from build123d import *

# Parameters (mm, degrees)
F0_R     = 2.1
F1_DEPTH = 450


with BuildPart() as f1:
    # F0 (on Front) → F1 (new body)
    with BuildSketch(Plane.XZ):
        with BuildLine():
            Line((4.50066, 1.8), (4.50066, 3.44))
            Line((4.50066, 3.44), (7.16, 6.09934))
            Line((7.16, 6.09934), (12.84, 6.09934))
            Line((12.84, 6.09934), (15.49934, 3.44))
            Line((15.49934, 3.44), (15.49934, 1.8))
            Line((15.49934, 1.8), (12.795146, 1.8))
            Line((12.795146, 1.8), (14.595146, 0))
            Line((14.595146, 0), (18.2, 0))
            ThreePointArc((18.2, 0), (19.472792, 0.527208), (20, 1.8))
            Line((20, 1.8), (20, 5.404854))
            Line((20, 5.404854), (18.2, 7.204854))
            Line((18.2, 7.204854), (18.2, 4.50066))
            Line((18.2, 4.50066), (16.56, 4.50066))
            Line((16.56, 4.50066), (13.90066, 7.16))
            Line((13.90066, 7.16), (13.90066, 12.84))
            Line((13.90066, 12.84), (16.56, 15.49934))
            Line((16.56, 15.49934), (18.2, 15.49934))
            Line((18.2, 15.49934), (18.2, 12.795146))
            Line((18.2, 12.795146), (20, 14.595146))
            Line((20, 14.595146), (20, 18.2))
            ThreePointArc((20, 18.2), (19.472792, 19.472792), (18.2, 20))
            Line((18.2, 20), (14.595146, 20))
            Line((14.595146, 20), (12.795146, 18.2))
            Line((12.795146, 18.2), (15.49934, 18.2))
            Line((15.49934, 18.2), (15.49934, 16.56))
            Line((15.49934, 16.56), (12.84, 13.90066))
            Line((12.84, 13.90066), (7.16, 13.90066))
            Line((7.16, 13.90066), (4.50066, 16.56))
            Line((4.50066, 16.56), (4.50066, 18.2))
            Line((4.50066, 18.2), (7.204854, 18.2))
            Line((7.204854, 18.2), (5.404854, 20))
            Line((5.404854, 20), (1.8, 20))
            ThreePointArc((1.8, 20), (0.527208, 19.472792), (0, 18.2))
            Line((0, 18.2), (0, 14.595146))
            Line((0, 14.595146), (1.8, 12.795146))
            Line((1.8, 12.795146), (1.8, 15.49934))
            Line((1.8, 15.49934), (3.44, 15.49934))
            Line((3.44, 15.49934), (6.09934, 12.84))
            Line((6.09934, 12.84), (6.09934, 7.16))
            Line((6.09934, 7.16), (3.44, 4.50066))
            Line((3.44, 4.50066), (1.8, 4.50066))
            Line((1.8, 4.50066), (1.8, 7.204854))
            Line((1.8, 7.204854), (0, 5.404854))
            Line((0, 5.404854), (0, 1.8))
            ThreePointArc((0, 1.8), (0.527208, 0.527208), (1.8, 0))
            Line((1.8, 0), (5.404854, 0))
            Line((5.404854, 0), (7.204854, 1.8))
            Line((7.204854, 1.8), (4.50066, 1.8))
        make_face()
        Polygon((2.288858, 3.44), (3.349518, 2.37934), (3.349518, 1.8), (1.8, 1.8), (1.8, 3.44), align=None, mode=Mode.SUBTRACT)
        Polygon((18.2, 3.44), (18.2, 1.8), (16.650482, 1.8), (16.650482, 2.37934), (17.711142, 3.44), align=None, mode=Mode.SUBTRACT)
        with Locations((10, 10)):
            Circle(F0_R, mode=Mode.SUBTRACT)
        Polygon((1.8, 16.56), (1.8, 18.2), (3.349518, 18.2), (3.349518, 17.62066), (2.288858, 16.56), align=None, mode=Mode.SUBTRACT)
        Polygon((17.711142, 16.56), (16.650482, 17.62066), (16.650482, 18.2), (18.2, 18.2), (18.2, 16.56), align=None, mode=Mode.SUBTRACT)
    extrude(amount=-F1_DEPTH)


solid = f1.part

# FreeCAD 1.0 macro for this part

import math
import FreeCAD as App
import Part
import Sketcher
from FreeCAD import Vector


def add_polygon(sketch, points):
    """Adds a closed chain of lines whose ends are joined by coincident constraints."""
    first, n = sketch.GeometryCount, len(points)
    for a, b in zip(points, points[1:] + points[:1]):
        sketch.addGeometry(Part.LineSegment(App.Vector(*a, 0), App.Vector(*b, 0)), False)
    for i in range(n):
        sketch.addConstraint(Sketcher.Constraint("Coincident", first + i, 2, first + (i + 1) % n, 1))

doc = App.newDocument("Part")
body = doc.addObject("PartDesign::Body", "Body")

# Sketch on XZ plane
sketch1 = doc.addObject("Sketcher::SketchObject", "Sketch")
body.addObject(sketch1)
sketch1.AttachmentSupport = (doc.XZ_Plane, [""])
sketch1.MapMode = "FlatFace"
sketch1.addGeometry(Part.LineSegment(Vector(4.50066, 1.8, 0), Vector(4.50066, 3.44, 0)), False)  # 0
sketch1.addGeometry(Part.LineSegment(Vector(4.50066, 3.44, 0), Vector(7.16, 6.09934, 0)), False)  # 1
sketch1.addGeometry(Part.LineSegment(Vector(7.16, 6.09934, 0), Vector(12.84, 6.09934, 0)), False)  # 2
sketch1.addGeometry(Part.LineSegment(Vector(12.84, 6.09934, 0), Vector(15.49934, 3.44, 0)), False)  # 3
sketch1.addGeometry(Part.LineSegment(Vector(15.49934, 3.44, 0), Vector(15.49934, 1.8, 0)), False)  # 4
sketch1.addGeometry(Part.LineSegment(Vector(15.49934, 1.8, 0), Vector(12.795146, 1.8, 0)), False)  # 5
sketch1.addGeometry(Part.LineSegment(Vector(12.795146, 1.8, 0), Vector(14.595146, 0, 0)), False)  # 6
sketch1.addGeometry(Part.LineSegment(Vector(14.595146, 0, 0), Vector(18.2, 0, 0)), False)  # 7
sketch1.addGeometry(Part.ArcOfCircle(Part.Circle(Vector(18.199999, 1.800001, 0), Vector(0, 0, 1), 1.800001), math.radians(-89.999978), math.radians(-0.000022)), False)  # 8
sketch1.addGeometry(Part.LineSegment(Vector(20, 1.8, 0), Vector(20, 5.404854, 0)), False)  # 9
sketch1.addGeometry(Part.LineSegment(Vector(20, 5.404854, 0), Vector(18.2, 7.204854, 0)), False)  # 10
sketch1.addGeometry(Part.LineSegment(Vector(18.2, 7.204854, 0), Vector(18.2, 4.50066, 0)), False)  # 11
sketch1.addGeometry(Part.LineSegment(Vector(18.2, 4.50066, 0), Vector(16.56, 4.50066, 0)), False)  # 12
sketch1.addGeometry(Part.LineSegment(Vector(16.56, 4.50066, 0), Vector(13.90066, 7.16, 0)), False)  # 13
sketch1.addGeometry(Part.LineSegment(Vector(13.90066, 7.16, 0), Vector(13.90066, 12.84, 0)), False)  # 14
sketch1.addGeometry(Part.LineSegment(Vector(13.90066, 12.84, 0), Vector(16.56, 15.49934, 0)), False)  # 15
sketch1.addGeometry(Part.LineSegment(Vector(16.56, 15.49934, 0), Vector(18.2, 15.49934, 0)), False)  # 16
sketch1.addGeometry(Part.LineSegment(Vector(18.2, 15.49934, 0), Vector(18.2, 12.795146, 0)), False)  # 17
sketch1.addGeometry(Part.LineSegment(Vector(18.2, 12.795146, 0), Vector(20, 14.595146, 0)), False)  # 18
sketch1.addGeometry(Part.LineSegment(Vector(20, 14.595146, 0), Vector(20, 18.2, 0)), False)  # 19
sketch1.addGeometry(Part.ArcOfCircle(Part.Circle(Vector(18.199999, 18.199999, 0), Vector(0, 0, 1), 1.800001), math.radians(0.000022), math.radians(89.999978)), False)  # 20
sketch1.addGeometry(Part.LineSegment(Vector(18.2, 20, 0), Vector(14.595146, 20, 0)), False)  # 21
sketch1.addGeometry(Part.LineSegment(Vector(14.595146, 20, 0), Vector(12.795146, 18.2, 0)), False)  # 22
sketch1.addGeometry(Part.LineSegment(Vector(12.795146, 18.2, 0), Vector(15.49934, 18.2, 0)), False)  # 23
sketch1.addGeometry(Part.LineSegment(Vector(15.49934, 18.2, 0), Vector(15.49934, 16.56, 0)), False)  # 24
sketch1.addGeometry(Part.LineSegment(Vector(15.49934, 16.56, 0), Vector(12.84, 13.90066, 0)), False)  # 25
sketch1.addGeometry(Part.LineSegment(Vector(12.84, 13.90066, 0), Vector(7.16, 13.90066, 0)), False)  # 26
sketch1.addGeometry(Part.LineSegment(Vector(7.16, 13.90066, 0), Vector(4.50066, 16.56, 0)), False)  # 27
sketch1.addGeometry(Part.LineSegment(Vector(4.50066, 16.56, 0), Vector(4.50066, 18.2, 0)), False)  # 28
sketch1.addGeometry(Part.LineSegment(Vector(4.50066, 18.2, 0), Vector(7.204854, 18.2, 0)), False)  # 29
sketch1.addGeometry(Part.LineSegment(Vector(7.204854, 18.2, 0), Vector(5.404854, 20, 0)), False)  # 30
sketch1.addGeometry(Part.LineSegment(Vector(5.404854, 20, 0), Vector(1.8, 20, 0)), False)  # 31
sketch1.addGeometry(Part.ArcOfCircle(Part.Circle(Vector(1.800001, 18.199999, 0), Vector(0, 0, 1), 1.800001), math.radians(90.000022), math.radians(179.999978)), False)  # 32
sketch1.addGeometry(Part.LineSegment(Vector(0, 18.2, 0), Vector(0, 14.595146, 0)), False)  # 33
sketch1.addGeometry(Part.LineSegment(Vector(0, 14.595146, 0), Vector(1.8, 12.795146, 0)), False)  # 34
sketch1.addGeometry(Part.LineSegment(Vector(1.8, 12.795146, 0), Vector(1.8, 15.49934, 0)), False)  # 35
sketch1.addGeometry(Part.LineSegment(Vector(1.8, 15.49934, 0), Vector(3.44, 15.49934, 0)), False)  # 36
sketch1.addGeometry(Part.LineSegment(Vector(3.44, 15.49934, 0), Vector(6.09934, 12.84, 0)), False)  # 37
sketch1.addGeometry(Part.LineSegment(Vector(6.09934, 12.84, 0), Vector(6.09934, 7.16, 0)), False)  # 38
sketch1.addGeometry(Part.LineSegment(Vector(6.09934, 7.16, 0), Vector(3.44, 4.50066, 0)), False)  # 39
sketch1.addGeometry(Part.LineSegment(Vector(3.44, 4.50066, 0), Vector(1.8, 4.50066, 0)), False)  # 40
sketch1.addGeometry(Part.LineSegment(Vector(1.8, 4.50066, 0), Vector(1.8, 7.204854, 0)), False)  # 41
sketch1.addGeometry(Part.LineSegment(Vector(1.8, 7.204854, 0), Vector(0, 5.404854, 0)), False)  # 42
sketch1.addGeometry(Part.LineSegment(Vector(0, 5.404854, 0), Vector(0, 1.8, 0)), False)  # 43
sketch1.addGeometry(Part.ArcOfCircle(Part.Circle(Vector(1.800001, 1.800001, 0), Vector(0, 0, 1), 1.800001), math.radians(-179.999978), math.radians(-90.000022)), False)  # 44
sketch1.addGeometry(Part.LineSegment(Vector(1.8, 0, 0), Vector(5.404854, 0, 0)), False)  # 45
sketch1.addGeometry(Part.LineSegment(Vector(5.404854, 0, 0), Vector(7.204854, 1.8, 0)), False)  # 46
sketch1.addGeometry(Part.LineSegment(Vector(7.204854, 1.8, 0), Vector(4.50066, 1.8, 0)), False)  # 47
add_polygon(sketch1, [(1.8, 3.44), (2.288858, 3.44), (3.349518, 2.37934), (3.349518, 1.8), (1.8, 1.8)])  # lines 48-52
add_polygon(sketch1, [(17.711142, 3.44), (18.2, 3.44), (18.2, 1.8), (16.650482, 1.8), (16.650482, 2.37934)])  # lines 53-57
add_polygon(sketch1, [(2.288858, 16.56), (1.8, 16.56), (1.8, 18.2), (3.349518, 18.2), (3.349518, 17.62066)])  # lines 58-62
sketch1.addGeometry(Part.Circle(Vector(10, 10, 0), Vector(0, 0, 1), 2.1), False)  # 63
add_polygon(sketch1, [(18.2, 16.56), (17.711142, 16.56), (16.650482, 17.62066), (16.650482, 18.2), (18.2, 18.2)])  # lines 64-68
sketch1.addConstraint(Sketcher.Constraint("Coincident", 0, 2, 1, 1))
sketch1.addConstraint(Sketcher.Constraint("Coincident", 1, 2, 2, 1))
sketch1.addConstraint(Sketcher.Constraint("Coincident", 2, 2, 3, 1))
sketch1.addConstraint(Sketcher.Constraint("Coincident", 3, 2, 4, 1))
sketch1.addConstraint(Sketcher.Constraint("Coincident", 4, 2, 5, 1))
sketch1.addConstraint(Sketcher.Constraint("Coincident", 5, 2, 6, 1))
sketch1.addConstraint(Sketcher.Constraint("Coincident", 6, 2, 7, 1))
sketch1.addConstraint(Sketcher.Constraint("Tangent", 7, 2, 8, 1))
sketch1.addConstraint(Sketcher.Constraint("Tangent", 8, 2, 9, 1))
sketch1.addConstraint(Sketcher.Constraint("Coincident", 9, 2, 10, 1))
sketch1.addConstraint(Sketcher.Constraint("Coincident", 10, 2, 11, 1))
sketch1.addConstraint(Sketcher.Constraint("Coincident", 11, 2, 12, 1))
sketch1.addConstraint(Sketcher.Constraint("Coincident", 12, 2, 13, 1))
sketch1.addConstraint(Sketcher.Constraint("Coincident", 13, 2, 14, 1))
sketch1.addConstraint(Sketcher.Constraint("Coincident", 14, 2, 15, 1))
sketch1.addConstraint(Sketcher.Constraint("Coincident", 15, 2, 16, 1))
sketch1.addConstraint(Sketcher.Constraint("Coincident", 16, 2, 17, 1))
sketch1.addConstraint(Sketcher.Constraint("Coincident", 17, 2, 18, 1))
sketch1.addConstraint(Sketcher.Constraint("Coincident", 18, 2, 19, 1))
sketch1.addConstraint(Sketcher.Constraint("Tangent", 19, 2, 20, 1))
sketch1.addConstraint(Sketcher.Constraint("Tangent", 20, 2, 21, 1))
sketch1.addConstraint(Sketcher.Constraint("Coincident", 21, 2, 22, 1))
sketch1.addConstraint(Sketcher.Constraint("Coincident", 22, 2, 23, 1))
sketch1.addConstraint(Sketcher.Constraint("Coincident", 23, 2, 24, 1))
sketch1.addConstraint(Sketcher.Constraint("Coincident", 24, 2, 25, 1))
sketch1.addConstraint(Sketcher.Constraint("Coincident", 25, 2, 26, 1))
sketch1.addConstraint(Sketcher.Constraint("Coincident", 26, 2, 27, 1))
sketch1.addConstraint(Sketcher.Constraint("Coincident", 27, 2, 28, 1))
sketch1.addConstraint(Sketcher.Constraint("Coincident", 28, 2, 29, 1))
sketch1.addConstraint(Sketcher.Constraint("Coincident", 29, 2, 30, 1))
sketch1.addConstraint(Sketcher.Constraint("Coincident", 30, 2, 31, 1))
sketch1.addConstraint(Sketcher.Constraint("Tangent", 31, 2, 32, 1))
sketch1.addConstraint(Sketcher.Constraint("Tangent", 32, 2, 33, 1))
sketch1.addConstraint(Sketcher.Constraint("Coincident", 33, 2, 34, 1))
sketch1.addConstraint(Sketcher.Constraint("Coincident", 34, 2, 35, 1))
sketch1.addConstraint(Sketcher.Constraint("Coincident", 35, 2, 36, 1))
sketch1.addConstraint(Sketcher.Constraint("Coincident", 36, 2, 37, 1))
sketch1.addConstraint(Sketcher.Constraint("Coincident", 37, 2, 38, 1))
sketch1.addConstraint(Sketcher.Constraint("Coincident", 38, 2, 39, 1))
sketch1.addConstraint(Sketcher.Constraint("Coincident", 39, 2, 40, 1))
sketch1.addConstraint(Sketcher.Constraint("Coincident", 40, 2, 41, 1))
sketch1.addConstraint(Sketcher.Constraint("Coincident", 41, 2, 42, 1))
sketch1.addConstraint(Sketcher.Constraint("Coincident", 42, 2, 43, 1))
sketch1.addConstraint(Sketcher.Constraint("Tangent", 43, 2, 44, 1))
sketch1.addConstraint(Sketcher.Constraint("Tangent", 44, 2, 45, 1))
sketch1.addConstraint(Sketcher.Constraint("Coincident", 45, 2, 46, 1))
sketch1.addConstraint(Sketcher.Constraint("Coincident", 46, 2, 47, 1))
sketch1.addConstraint(Sketcher.Constraint("Coincident", 47, 2, 0, 1))
sketch1.addConstraint(Sketcher.Constraint("Vertical", 0))
sketch1.addConstraint(Sketcher.Constraint("Horizontal", 2))
sketch1.addConstraint(Sketcher.Constraint("Vertical", 4))
sketch1.addConstraint(Sketcher.Constraint("Horizontal", 5))
sketch1.addConstraint(Sketcher.Constraint("Horizontal", 7))
sketch1.addConstraint(Sketcher.Constraint("Vertical", 9))
sketch1.addConstraint(Sketcher.Constraint("Vertical", 11))
sketch1.addConstraint(Sketcher.Constraint("Horizontal", 12))
sketch1.addConstraint(Sketcher.Constraint("Vertical", 14))
sketch1.addConstraint(Sketcher.Constraint("Horizontal", 16))
sketch1.addConstraint(Sketcher.Constraint("Vertical", 17))
sketch1.addConstraint(Sketcher.Constraint("Vertical", 19))
sketch1.addConstraint(Sketcher.Constraint("Horizontal", 21))
sketch1.addConstraint(Sketcher.Constraint("Horizontal", 23))
sketch1.addConstraint(Sketcher.Constraint("Vertical", 24))
sketch1.addConstraint(Sketcher.Constraint("Horizontal", 26))
sketch1.addConstraint(Sketcher.Constraint("Vertical", 28))
sketch1.addConstraint(Sketcher.Constraint("Horizontal", 29))
sketch1.addConstraint(Sketcher.Constraint("Horizontal", 31))
sketch1.addConstraint(Sketcher.Constraint("Vertical", 33))
sketch1.addConstraint(Sketcher.Constraint("Vertical", 35))
sketch1.addConstraint(Sketcher.Constraint("Horizontal", 36))
sketch1.addConstraint(Sketcher.Constraint("Vertical", 38))
sketch1.addConstraint(Sketcher.Constraint("Horizontal", 40))
sketch1.addConstraint(Sketcher.Constraint("Vertical", 41))
sketch1.addConstraint(Sketcher.Constraint("Vertical", 43))
sketch1.addConstraint(Sketcher.Constraint("Horizontal", 45))
sketch1.addConstraint(Sketcher.Constraint("Horizontal", 47))
sketch1.addConstraint(Sketcher.Constraint("Horizontal", 48))
sketch1.addConstraint(Sketcher.Constraint("Vertical", 50))
sketch1.addConstraint(Sketcher.Constraint("Horizontal", 51))
sketch1.addConstraint(Sketcher.Constraint("Vertical", 52))
sketch1.addConstraint(Sketcher.Constraint("Horizontal", 53))
sketch1.addConstraint(Sketcher.Constraint("Vertical", 54))
sketch1.addConstraint(Sketcher.Constraint("Horizontal", 55))
sketch1.addConstraint(Sketcher.Constraint("Vertical", 56))
sketch1.addConstraint(Sketcher.Constraint("Horizontal", 58))
sketch1.addConstraint(Sketcher.Constraint("Vertical", 59))
sketch1.addConstraint(Sketcher.Constraint("Horizontal", 60))
sketch1.addConstraint(Sketcher.Constraint("Vertical", 61))
sketch1.addConstraint(Sketcher.Constraint("Horizontal", 64))
sketch1.addConstraint(Sketcher.Constraint("Vertical", 66))
sketch1.addConstraint(Sketcher.Constraint("Horizontal", 67))
sketch1.addConstraint(Sketcher.Constraint("Vertical", 68))
sketch1.addConstraint(Sketcher.Constraint("Coincident", 51, 2, 44, 3))
sketch1.addConstraint(Sketcher.Constraint("Coincident", 54, 2, 8, 3))
sketch1.addConstraint(Sketcher.Constraint("Coincident", 59, 2, 32, 3))
sketch1.addConstraint(Sketcher.Constraint("Coincident", 67, 2, 20, 3))
sketch1.addConstraint(Sketcher.Constraint("Equal", 8, 20))
sketch1.addConstraint(Sketcher.Constraint("Equal", 20, 32))
sketch1.addConstraint(Sketcher.Constraint("Equal", 32, 44))
sketch1.addConstraint(Sketcher.Constraint("PointOnObject", 6, 2, -1))
sketch1.addConstraint(Sketcher.Constraint("PointOnObject", 32, 2, -2))
sketch1.addConstraint(Sketcher.Constraint("PointOnObject", 42, 2, -2))
sketch1.addConstraint(Sketcher.Constraint("PointOnObject", 44, 2, -1))
sketch1.addConstraint(Sketcher.Constraint("Perpendicular", 1, 3))
sketch1.addConstraint(Sketcher.Constraint("Parallel", 3, 6))
sketch1.addConstraint(Sketcher.Constraint("Parallel", 6, 10))
sketch1.addConstraint(Sketcher.Constraint("Parallel", 10, 13))
sketch1.addConstraint(Sketcher.Constraint("Perpendicular", 13, 15))
sketch1.addConstraint(Sketcher.Constraint("Parallel", 15, 18))
sketch1.addConstraint(Sketcher.Constraint("Parallel", 18, 22))
sketch1.addConstraint(Sketcher.Constraint("Parallel", 22, 25))
sketch1.addConstraint(Sketcher.Constraint("Perpendicular", 25, 27))
sketch1.addConstraint(Sketcher.Constraint("Parallel", 27, 30))
sketch1.addConstraint(Sketcher.Constraint("Parallel", 30, 34))
sketch1.addConstraint(Sketcher.Constraint("Parallel", 34, 37))
sketch1.addConstraint(Sketcher.Constraint("Perpendicular", 37, 39))
sketch1.addConstraint(Sketcher.Constraint("Parallel", 39, 42))
sketch1.addConstraint(Sketcher.Constraint("Parallel", 42, 46))
sketch1.addConstraint(Sketcher.Constraint("Perpendicular", 46, 49))
sketch1.addConstraint(Sketcher.Constraint("Perpendicular", 49, 57))
sketch1.addConstraint(Sketcher.Constraint("Parallel", 57, 62))
sketch1.addConstraint(Sketcher.Constraint("Perpendicular", 62, 65))
sketch1.addConstraint(Sketcher.Constraint("Horizontal", 20, 3, 32, 3))
sketch1.addConstraint(Sketcher.Constraint("Horizontal", 0, 2, 3, 2))
sketch1.addConstraint(Sketcher.Constraint("Horizontal", 44, 3, 4, 2))
sketch1.addConstraint(Sketcher.Constraint("Horizontal", 19, 2, 22, 2))
sketch1.addConstraint(Sketcher.Constraint("Horizontal", 24, 2, 27, 2))
sketch1.addConstraint(Sketcher.Constraint("Horizontal", 23, 2, 28, 2))
sketch1.addConstraint(Sketcher.Constraint("Horizontal", 18, 2, 33, 2))
sketch1.addConstraint(Sketcher.Constraint("Horizontal", 17, 2, 34, 2))
sketch1.addConstraint(Sketcher.Constraint("Horizontal", 16, 2, 35, 2))
sketch1.addConstraint(Sketcher.Constraint("Horizontal", 14, 2, 37, 2))
sketch1.addConstraint(Sketcher.Constraint("Horizontal", 13, 2, 38, 2))
sketch1.addConstraint(Sketcher.Constraint("Horizontal", 12, 2, 39, 2))
sketch1.addConstraint(Sketcher.Constraint("Horizontal", 10, 2, 41, 2))
sketch1.addConstraint(Sketcher.Constraint("Horizontal", 9, 2, 42, 2))
sketch1.addConstraint(Sketcher.Constraint("Horizontal", 43, 2, 46, 2))
sketch1.addConstraint(Sketcher.Constraint("Horizontal", 3, 2, 48, 2))
sketch1.addConstraint(Sketcher.Constraint("Horizontal", 52, 2, 53, 2))
sketch1.addConstraint(Sketcher.Constraint("Horizontal", 49, 2, 56, 2))
sketch1.addConstraint(Sketcher.Constraint("Horizontal", 27, 2, 58, 2))
sketch1.addConstraint(Sketcher.Constraint("Horizontal", 62, 2, 64, 2))
sketch1.addConstraint(Sketcher.Constraint("Horizontal", 61, 2, 65, 2))
sketch1.addConstraint(Sketcher.Constraint("Vertical", 8, 3, 20, 3))
sketch1.addConstraint(Sketcher.Constraint("Vertical", 7, 2, 10, 2))
sketch1.addConstraint(Sketcher.Constraint("Vertical", 12, 2, 15, 2))
sketch1.addConstraint(Sketcher.Constraint("Vertical", 11, 2, 16, 2))
sketch1.addConstraint(Sketcher.Constraint("Vertical", 6, 2, 21, 2))
sketch1.addConstraint(Sketcher.Constraint("Vertical", 5, 2, 22, 2))
sketch1.addConstraint(Sketcher.Constraint("Vertical", 4, 2, 23, 2))
sketch1.addConstraint(Sketcher.Constraint("Vertical", 2, 2, 25, 2))
sketch1.addConstraint(Sketcher.Constraint("Vertical", 1, 2, 26, 2))
sketch1.addConstraint(Sketcher.Constraint("Vertical", 30, 2, 45, 2))
sketch1.addConstraint(Sketcher.Constraint("Vertical", 50, 2, 60, 2))
sketch1.addConstraint(Sketcher.Constraint("Vertical", 48, 2, 62, 2))
sketch1.addConstraint(Sketcher.Constraint("Vertical", 57, 2, 64, 2))
sketch1.addConstraint(Sketcher.Constraint("Equal", 23, 29))
sketch1.addConstraint(Sketcher.Constraint("Equal", 21, 31))
sketch1.addConstraint(Sketcher.Constraint("Equal", 16, 36))
sketch1.addConstraint(Sketcher.Constraint("Equal", 48, 53))
sketch1.addConstraint(Sketcher.Constraint("Equal", 40, 0))
sketch1.addConstraint(Sketcher.Constraint("Equal", 45, 9))
sketch1.addConstraint(Sketcher.Constraint("Equal", 47, 11))
sketch1.addConstraint(Sketcher.Constraint("Equal", 26, 14))
sketch1.addConstraint(Sketcher.Constraint("Equal", 11, 17))
sketch1.addConstraint(Sketcher.Constraint("Equal", 9, 19))
sketch1.addConstraint(Sketcher.Constraint("Equal", 4, 24))
sketch1.addConstraint(Sketcher.Constraint("Equal", 3, 13))
sketch1.addConstraint(Sketcher.Constraint("Diameter", 63, 4.2))
sketch1.addConstraint(Sketcher.Constraint("Radius", 8, 1.800001))
sketch1.addConstraint(Sketcher.Constraint("DistanceX", -1, 1, 63, 3, 10.0))
sketch1.addConstraint(Sketcher.Constraint("DistanceY", -1, 1, 63, 3, 10.0))
sketch1.addConstraint(Sketcher.Constraint("DistanceX", -1, 1, 8, 2, 20.0))
sketch1.addConstraint(Sketcher.Constraint("Distance", 49, 1.5))
sketch1.addConstraint(Sketcher.Constraint("DistanceX", 2, 1, 2, 2, 5.68))
sketch1.addConstraint(Sketcher.Constraint("DistanceX", 12, 2, 12, 1, 1.64))
sketch1.addConstraint(Sketcher.Constraint("DistanceX", 51, 2, 51, 1, 1.549518))
sketch1.addConstraint(Sketcher.Constraint("DistanceX", 5, 2, 5, 1, 2.704194))
sketch1.addConstraint(Sketcher.Constraint("DistanceX", 7, 1, 7, 2, 3.604854))
pad1 = doc.addObject("PartDesign::Pad", "Pad")
body.addObject(pad1)
pad1.Profile = sketch1
pad1.Length = 450
pad1.Reversed = True

doc.recompute()
